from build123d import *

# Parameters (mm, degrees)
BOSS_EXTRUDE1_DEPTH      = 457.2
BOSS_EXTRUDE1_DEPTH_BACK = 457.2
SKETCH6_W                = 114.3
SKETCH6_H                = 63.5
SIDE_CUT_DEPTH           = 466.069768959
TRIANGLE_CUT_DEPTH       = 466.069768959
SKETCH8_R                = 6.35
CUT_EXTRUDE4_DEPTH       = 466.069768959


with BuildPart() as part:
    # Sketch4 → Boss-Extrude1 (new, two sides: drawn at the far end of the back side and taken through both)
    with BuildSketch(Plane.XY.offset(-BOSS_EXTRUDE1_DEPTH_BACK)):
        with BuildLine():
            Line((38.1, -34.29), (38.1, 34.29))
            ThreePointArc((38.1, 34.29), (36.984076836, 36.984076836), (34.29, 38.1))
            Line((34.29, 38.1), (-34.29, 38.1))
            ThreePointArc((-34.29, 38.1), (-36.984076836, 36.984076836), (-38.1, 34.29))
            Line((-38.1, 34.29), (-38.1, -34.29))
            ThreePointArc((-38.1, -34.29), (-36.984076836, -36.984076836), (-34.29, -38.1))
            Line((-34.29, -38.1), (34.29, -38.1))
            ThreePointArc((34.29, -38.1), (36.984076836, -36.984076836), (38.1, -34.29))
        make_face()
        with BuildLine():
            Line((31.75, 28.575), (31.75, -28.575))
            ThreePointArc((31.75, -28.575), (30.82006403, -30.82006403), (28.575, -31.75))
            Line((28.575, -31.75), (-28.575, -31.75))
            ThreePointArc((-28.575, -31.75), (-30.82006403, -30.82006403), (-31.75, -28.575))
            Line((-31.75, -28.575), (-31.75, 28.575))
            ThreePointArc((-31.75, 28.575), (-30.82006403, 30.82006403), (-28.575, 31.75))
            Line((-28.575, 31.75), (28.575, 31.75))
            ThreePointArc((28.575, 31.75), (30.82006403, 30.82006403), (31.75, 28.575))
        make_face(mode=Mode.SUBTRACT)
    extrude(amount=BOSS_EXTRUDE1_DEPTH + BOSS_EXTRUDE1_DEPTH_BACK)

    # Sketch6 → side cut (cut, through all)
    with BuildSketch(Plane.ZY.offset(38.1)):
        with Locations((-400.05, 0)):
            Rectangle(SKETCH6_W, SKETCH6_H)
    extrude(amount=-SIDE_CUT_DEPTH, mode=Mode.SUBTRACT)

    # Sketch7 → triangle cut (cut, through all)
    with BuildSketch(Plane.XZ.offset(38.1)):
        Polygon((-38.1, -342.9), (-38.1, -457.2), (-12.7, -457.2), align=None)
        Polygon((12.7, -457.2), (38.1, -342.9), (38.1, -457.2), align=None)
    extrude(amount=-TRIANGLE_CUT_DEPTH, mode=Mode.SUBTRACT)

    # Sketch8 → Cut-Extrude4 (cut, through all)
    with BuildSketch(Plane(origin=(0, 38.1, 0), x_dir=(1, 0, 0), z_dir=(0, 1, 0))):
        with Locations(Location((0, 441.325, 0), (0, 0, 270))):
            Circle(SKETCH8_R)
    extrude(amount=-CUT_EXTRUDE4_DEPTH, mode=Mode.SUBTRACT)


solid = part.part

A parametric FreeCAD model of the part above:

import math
import FreeCAD as App
import Part
import Sketcher
Q = App.Units.Quantity


def add_polygon(sketch, points):
    """Adds a closed chain of lines whose ends are joined by coincident constraints."""
    first, n = sketch.GeometryCount, len(points)
    for a, b in zip(points, points[1:] + points[:1]):
        sketch.addGeometry(Part.LineSegment(App.Vector(*a, 0), App.Vector(*b, 0)), False)
    for i in range(n):
        sketch.addConstraint(Sketcher.Constraint("Coincident", first + i, 2, first + (i + 1) % n, 1))

doc = App.newDocument("Part")
body = doc.addObject("PartDesign::Body", "Body")

# Sketch on XY plane
sketch1 = body.newObject("Sketcher::SketchObject", "Sketch")
sketch1.AttachmentSupport = (doc.getObject("XY_Plane"), [""])
sketch1.MapMode = "FlatFace"
sketch1.addGeometry([
    Part.LineSegment(App.Vector(38.1, -34.3, 0), App.Vector(38.1, 34.3, 0)),  # 0
    Part.ArcOfCircle(Part.Circle(App.Vector(34.3, 34.3, 0), App.Vector(0, 0, 1), 3.8), math.radians(0), math.radians(90)),  # 1
    Part.LineSegment(App.Vector(34.3, 38.1, 0), App.Vector(-34.3, 38.1, 0)),  # 2
    Part.ArcOfCircle(Part.Circle(App.Vector(-34.3, 34.3, 0), App.Vector(0, 0, 1), 3.8), math.radians(90), math.radians(180)),  # 3
    Part.LineSegment(App.Vector(-38.1, 34.3, 0), App.Vector(-38.1, -34.3, 0)),  # 4
    Part.ArcOfCircle(Part.Circle(App.Vector(-34.3, -34.3, 0), App.Vector(0, 0, 1), 3.8), math.radians(-180), math.radians(-90)),  # 5
    Part.LineSegment(App.Vector(-34.3, -38.1, 0), App.Vector(34.3, -38.1, 0)),  # 6
    Part.ArcOfCircle(Part.Circle(App.Vector(34.3, -34.3, 0), App.Vector(0, 0, 1), 3.8), math.radians(-90), math.radians(0)),  # 7
    Part.ArcOfCircle(Part.Circle(App.Vector(28.6, 28.6, 0), App.Vector(0, 0, 1), 3.2), math.radians(0), math.radians(90)),  # 8
    Part.LineSegment(App.Vector(31.8, 28.6, 0), App.Vector(31.8, -28.6, 0)),  # 9
    Part.ArcOfCircle(Part.Circle(App.Vector(28.6, -28.6, 0), App.Vector(0, 0, 1), 3.2), math.radians(-90), math.radians(0)),  # 10
    Part.LineSegment(App.Vector(28.6, -31.8, 0), App.Vector(-28.6, -31.8, 0)),  # 11
    Part.ArcOfCircle(Part.Circle(App.Vector(-28.6, -28.6, 0), App.Vector(0, 0, 1), 3.2), math.radians(-180), math.radians(-90)),  # 12
    Part.LineSegment(App.Vector(-31.8, -28.6, 0), App.Vector(-31.8, 28.6, 0)),  # 13
    Part.ArcOfCircle(Part.Circle(App.Vector(-28.6, 28.6, 0), App.Vector(0, 0, 1), 3.2), math.radians(90), math.radians(180)),  # 14
    Part.LineSegment(App.Vector(-28.6, 31.8, 0), App.Vector(28.6, 31.8, 0)),  # 15
], False)
sketch1.addConstraint([
    Sketcher.Constraint("Tangent", 0, 2, 1, 1),
    Sketcher.Constraint("Tangent", 1, 2, 2, 1),
    Sketcher.Constraint("Tangent", 2, 2, 3, 1),
    Sketcher.Constraint("Tangent", 3, 2, 4, 1),
    Sketcher.Constraint("Tangent", 4, 2, 5, 1),
    Sketcher.Constraint("Tangent", 5, 2, 6, 1),
    Sketcher.Constraint("Tangent", 6, 2, 7, 1),
    Sketcher.Constraint("Tangent", 7, 2, 0, 1),
    Sketcher.Constraint("Tangent", 8, 1, 9, 1),
    Sketcher.Constraint("Tangent", 9, 2, 10, 2),
    Sketcher.Constraint("Tangent", 10, 1, 11, 1),
    Sketcher.Constraint("Tangent", 11, 2, 12, 2),
    Sketcher.Constraint("Tangent", 12, 1, 13, 1),
    Sketcher.Constraint("Tangent", 13, 2, 14, 2),
    Sketcher.Constraint("Tangent", 14, 1, 15, 1),
    Sketcher.Constraint("Tangent", 15, 2, 8, 2),
    Sketcher.Constraint("Vertical", 0),
    Sketcher.Constraint("Horizontal", 2),
    Sketcher.Constraint("Vertical", 4),
    Sketcher.Constraint("Horizontal", 6),
    Sketcher.Constraint("Vertical", 9),
    Sketcher.Constraint("Horizontal", 11),
    Sketcher.Constraint("Vertical", 13),
    Sketcher.Constraint("Horizontal", 15),
    Sketcher.Constraint("Equal", 1, 3),
    Sketcher.Constraint("Equal", 3, 5),
    Sketcher.Constraint("Equal", 5, 7),
    Sketcher.Constraint("Equal", 8, 10),
    Sketcher.Constraint("Equal", 10, 12),
    Sketcher.Constraint("Equal", 12, 14),
    Sketcher.Constraint("Symmetric", 1, 3, 5, 3, -1, 1),
    Sketcher.Constraint("Symmetric", 8, 3, 12, 3, -1, 1),
    Sketcher.Constraint("Equal", 6, 0),
    Sketcher.Constraint("Equal", 15, 9),
    Sketcher.Constraint("Radius", 1, Q("0.15 in")),
    Sketcher.Constraint("DistanceX", 2, 2, 2, 1, Q("2.7 in")),
    Sketcher.Constraint("Radius", 8, Q("0.125 in")),
    Sketcher.Constraint("DistanceX", 11, 2, 11, 1, Q("2.25 in")),
])
pad1 = body.newObject("PartDesign::Pad", "Pad")
pad1.Profile = sketch1
pad1.Type = "TwoLengths"
pad1.Length = Q("18 in")
pad1.Length2 = Q("18 in")

# Sketch on YZ plane
sketch2 = body.newObject("Sketcher::SketchObject", "Sketch001")
sketch2.AttachmentSupport = (doc.getObject("YZ_Plane"), [""])
sketch2.MapMode = "FlatFace"
sketch2.AttachmentOffset = App.Placement(App.Vector(0, 0, -1.5 * 25.4), App.Rotation())
add_polygon(sketch2, [(32, -457), (-32, -457), (-32, -343), (32, -343)])  # lines 0-3
sketch2.addConstraint([
    Sketcher.Constraint("Horizontal", 0),
    Sketcher.Constraint("Vertical", 1),
    Sketcher.Constraint("Horizontal", 2),
    Sketcher.Constraint("Vertical", 3),
    Sketcher.Constraint("DistanceX", 0, 2, 0, 1, Q("2.5 in")),
    Sketcher.Constraint("DistanceY", 1, 1, 1, 2, Q("4.5 in")),
    Sketcher.Constraint("DistanceY", 0, 2, -1, 1, Q("18 in")),
    Sketcher.Constraint("DistanceX", 0, 2, -1, 1, Q("1.25 in")),
])
pocket1 = body.newObject("PartDesign::Pocket", "Pocket")
pocket1.Profile = sketch2
pocket1.Type = "ThroughAll"
pocket1.Reversed = True

# Sketch on XZ plane
sketch3 = body.newObject("Sketcher::SketchObject", "Sketch002")
sketch3.AttachmentSupport = (doc.getObject("XZ_Plane"), [""])
sketch3.MapMode = "FlatFace"
sketch3.AttachmentOffset = App.Placement(App.Vector(0, 0, 1.5 * 25.4), App.Rotation())
add_polygon(sketch3, [(-38, -343), (-38, -457), (-13, -457)])  # lines 0-2
add_polygon(sketch3, [(38, -343), (13, -457), (38, -457)])  # lines 3-5
sketch3.addConstraint([
    Sketcher.Constraint("Vertical", 0),
    Sketcher.Constraint("Horizontal", 1),
    Sketcher.Constraint("Horizontal", 4),
    Sketcher.Constraint("Vertical", 5),
    Sketcher.Constraint("Symmetric", 1, 2, 3, 2, -2),
    Sketcher.Constraint("Symmetric", 2, 2, 5, 2, -2),
    Sketcher.Constraint("DistanceX", 1, 1, 1, 2, Q("1 in")),
    Sketcher.Constraint("DistanceY", 0, 2, 0, 1, Q("4.5 in")),
    Sketcher.Constraint("DistanceY", 0, 2, -1, 1, Q("18 in")),
    Sketcher.Constraint("DistanceX", 1, 2, 3, 2, Q("1 in")),
])
pocket2 = body.newObject("PartDesign::Pocket", "Pocket001")
pocket2.Profile = sketch3
pocket2.Type = "ThroughAll"

# Sketch on XZ plane
sketch4 = body.newObject("Sketcher::SketchObject", "Sketch003")
sketch4.AttachmentSupport = (doc.getObject("XZ_Plane"), [""])
sketch4.MapMode = "FlatFace"
sketch4.AttachmentOffset = App.Placement(App.Vector(0, 0, -1.5 * 25.4), App.Rotation())
sketch4.addGeometry(Part.Circle(App.Vector(0, -441, 0), App.Vector(0, 0, 1), 6), False)
sketch4.addConstraint([
    Sketcher.Constraint("PointOnObject", 0, 3, -2),
    Sketcher.Constraint("Diameter", 0, Q("0.5 in")),
    Sketcher.Constraint("DistanceY", 0, 3, -1, 1, Q("17.375 in")),
])
pocket3 = body.newObject("PartDesign::Pocket", "Pocket002")
pocket3.Profile = sketch4
pocket3.Type = "ThroughAll"
pocket3.Reversed = True

doc.recompute()
